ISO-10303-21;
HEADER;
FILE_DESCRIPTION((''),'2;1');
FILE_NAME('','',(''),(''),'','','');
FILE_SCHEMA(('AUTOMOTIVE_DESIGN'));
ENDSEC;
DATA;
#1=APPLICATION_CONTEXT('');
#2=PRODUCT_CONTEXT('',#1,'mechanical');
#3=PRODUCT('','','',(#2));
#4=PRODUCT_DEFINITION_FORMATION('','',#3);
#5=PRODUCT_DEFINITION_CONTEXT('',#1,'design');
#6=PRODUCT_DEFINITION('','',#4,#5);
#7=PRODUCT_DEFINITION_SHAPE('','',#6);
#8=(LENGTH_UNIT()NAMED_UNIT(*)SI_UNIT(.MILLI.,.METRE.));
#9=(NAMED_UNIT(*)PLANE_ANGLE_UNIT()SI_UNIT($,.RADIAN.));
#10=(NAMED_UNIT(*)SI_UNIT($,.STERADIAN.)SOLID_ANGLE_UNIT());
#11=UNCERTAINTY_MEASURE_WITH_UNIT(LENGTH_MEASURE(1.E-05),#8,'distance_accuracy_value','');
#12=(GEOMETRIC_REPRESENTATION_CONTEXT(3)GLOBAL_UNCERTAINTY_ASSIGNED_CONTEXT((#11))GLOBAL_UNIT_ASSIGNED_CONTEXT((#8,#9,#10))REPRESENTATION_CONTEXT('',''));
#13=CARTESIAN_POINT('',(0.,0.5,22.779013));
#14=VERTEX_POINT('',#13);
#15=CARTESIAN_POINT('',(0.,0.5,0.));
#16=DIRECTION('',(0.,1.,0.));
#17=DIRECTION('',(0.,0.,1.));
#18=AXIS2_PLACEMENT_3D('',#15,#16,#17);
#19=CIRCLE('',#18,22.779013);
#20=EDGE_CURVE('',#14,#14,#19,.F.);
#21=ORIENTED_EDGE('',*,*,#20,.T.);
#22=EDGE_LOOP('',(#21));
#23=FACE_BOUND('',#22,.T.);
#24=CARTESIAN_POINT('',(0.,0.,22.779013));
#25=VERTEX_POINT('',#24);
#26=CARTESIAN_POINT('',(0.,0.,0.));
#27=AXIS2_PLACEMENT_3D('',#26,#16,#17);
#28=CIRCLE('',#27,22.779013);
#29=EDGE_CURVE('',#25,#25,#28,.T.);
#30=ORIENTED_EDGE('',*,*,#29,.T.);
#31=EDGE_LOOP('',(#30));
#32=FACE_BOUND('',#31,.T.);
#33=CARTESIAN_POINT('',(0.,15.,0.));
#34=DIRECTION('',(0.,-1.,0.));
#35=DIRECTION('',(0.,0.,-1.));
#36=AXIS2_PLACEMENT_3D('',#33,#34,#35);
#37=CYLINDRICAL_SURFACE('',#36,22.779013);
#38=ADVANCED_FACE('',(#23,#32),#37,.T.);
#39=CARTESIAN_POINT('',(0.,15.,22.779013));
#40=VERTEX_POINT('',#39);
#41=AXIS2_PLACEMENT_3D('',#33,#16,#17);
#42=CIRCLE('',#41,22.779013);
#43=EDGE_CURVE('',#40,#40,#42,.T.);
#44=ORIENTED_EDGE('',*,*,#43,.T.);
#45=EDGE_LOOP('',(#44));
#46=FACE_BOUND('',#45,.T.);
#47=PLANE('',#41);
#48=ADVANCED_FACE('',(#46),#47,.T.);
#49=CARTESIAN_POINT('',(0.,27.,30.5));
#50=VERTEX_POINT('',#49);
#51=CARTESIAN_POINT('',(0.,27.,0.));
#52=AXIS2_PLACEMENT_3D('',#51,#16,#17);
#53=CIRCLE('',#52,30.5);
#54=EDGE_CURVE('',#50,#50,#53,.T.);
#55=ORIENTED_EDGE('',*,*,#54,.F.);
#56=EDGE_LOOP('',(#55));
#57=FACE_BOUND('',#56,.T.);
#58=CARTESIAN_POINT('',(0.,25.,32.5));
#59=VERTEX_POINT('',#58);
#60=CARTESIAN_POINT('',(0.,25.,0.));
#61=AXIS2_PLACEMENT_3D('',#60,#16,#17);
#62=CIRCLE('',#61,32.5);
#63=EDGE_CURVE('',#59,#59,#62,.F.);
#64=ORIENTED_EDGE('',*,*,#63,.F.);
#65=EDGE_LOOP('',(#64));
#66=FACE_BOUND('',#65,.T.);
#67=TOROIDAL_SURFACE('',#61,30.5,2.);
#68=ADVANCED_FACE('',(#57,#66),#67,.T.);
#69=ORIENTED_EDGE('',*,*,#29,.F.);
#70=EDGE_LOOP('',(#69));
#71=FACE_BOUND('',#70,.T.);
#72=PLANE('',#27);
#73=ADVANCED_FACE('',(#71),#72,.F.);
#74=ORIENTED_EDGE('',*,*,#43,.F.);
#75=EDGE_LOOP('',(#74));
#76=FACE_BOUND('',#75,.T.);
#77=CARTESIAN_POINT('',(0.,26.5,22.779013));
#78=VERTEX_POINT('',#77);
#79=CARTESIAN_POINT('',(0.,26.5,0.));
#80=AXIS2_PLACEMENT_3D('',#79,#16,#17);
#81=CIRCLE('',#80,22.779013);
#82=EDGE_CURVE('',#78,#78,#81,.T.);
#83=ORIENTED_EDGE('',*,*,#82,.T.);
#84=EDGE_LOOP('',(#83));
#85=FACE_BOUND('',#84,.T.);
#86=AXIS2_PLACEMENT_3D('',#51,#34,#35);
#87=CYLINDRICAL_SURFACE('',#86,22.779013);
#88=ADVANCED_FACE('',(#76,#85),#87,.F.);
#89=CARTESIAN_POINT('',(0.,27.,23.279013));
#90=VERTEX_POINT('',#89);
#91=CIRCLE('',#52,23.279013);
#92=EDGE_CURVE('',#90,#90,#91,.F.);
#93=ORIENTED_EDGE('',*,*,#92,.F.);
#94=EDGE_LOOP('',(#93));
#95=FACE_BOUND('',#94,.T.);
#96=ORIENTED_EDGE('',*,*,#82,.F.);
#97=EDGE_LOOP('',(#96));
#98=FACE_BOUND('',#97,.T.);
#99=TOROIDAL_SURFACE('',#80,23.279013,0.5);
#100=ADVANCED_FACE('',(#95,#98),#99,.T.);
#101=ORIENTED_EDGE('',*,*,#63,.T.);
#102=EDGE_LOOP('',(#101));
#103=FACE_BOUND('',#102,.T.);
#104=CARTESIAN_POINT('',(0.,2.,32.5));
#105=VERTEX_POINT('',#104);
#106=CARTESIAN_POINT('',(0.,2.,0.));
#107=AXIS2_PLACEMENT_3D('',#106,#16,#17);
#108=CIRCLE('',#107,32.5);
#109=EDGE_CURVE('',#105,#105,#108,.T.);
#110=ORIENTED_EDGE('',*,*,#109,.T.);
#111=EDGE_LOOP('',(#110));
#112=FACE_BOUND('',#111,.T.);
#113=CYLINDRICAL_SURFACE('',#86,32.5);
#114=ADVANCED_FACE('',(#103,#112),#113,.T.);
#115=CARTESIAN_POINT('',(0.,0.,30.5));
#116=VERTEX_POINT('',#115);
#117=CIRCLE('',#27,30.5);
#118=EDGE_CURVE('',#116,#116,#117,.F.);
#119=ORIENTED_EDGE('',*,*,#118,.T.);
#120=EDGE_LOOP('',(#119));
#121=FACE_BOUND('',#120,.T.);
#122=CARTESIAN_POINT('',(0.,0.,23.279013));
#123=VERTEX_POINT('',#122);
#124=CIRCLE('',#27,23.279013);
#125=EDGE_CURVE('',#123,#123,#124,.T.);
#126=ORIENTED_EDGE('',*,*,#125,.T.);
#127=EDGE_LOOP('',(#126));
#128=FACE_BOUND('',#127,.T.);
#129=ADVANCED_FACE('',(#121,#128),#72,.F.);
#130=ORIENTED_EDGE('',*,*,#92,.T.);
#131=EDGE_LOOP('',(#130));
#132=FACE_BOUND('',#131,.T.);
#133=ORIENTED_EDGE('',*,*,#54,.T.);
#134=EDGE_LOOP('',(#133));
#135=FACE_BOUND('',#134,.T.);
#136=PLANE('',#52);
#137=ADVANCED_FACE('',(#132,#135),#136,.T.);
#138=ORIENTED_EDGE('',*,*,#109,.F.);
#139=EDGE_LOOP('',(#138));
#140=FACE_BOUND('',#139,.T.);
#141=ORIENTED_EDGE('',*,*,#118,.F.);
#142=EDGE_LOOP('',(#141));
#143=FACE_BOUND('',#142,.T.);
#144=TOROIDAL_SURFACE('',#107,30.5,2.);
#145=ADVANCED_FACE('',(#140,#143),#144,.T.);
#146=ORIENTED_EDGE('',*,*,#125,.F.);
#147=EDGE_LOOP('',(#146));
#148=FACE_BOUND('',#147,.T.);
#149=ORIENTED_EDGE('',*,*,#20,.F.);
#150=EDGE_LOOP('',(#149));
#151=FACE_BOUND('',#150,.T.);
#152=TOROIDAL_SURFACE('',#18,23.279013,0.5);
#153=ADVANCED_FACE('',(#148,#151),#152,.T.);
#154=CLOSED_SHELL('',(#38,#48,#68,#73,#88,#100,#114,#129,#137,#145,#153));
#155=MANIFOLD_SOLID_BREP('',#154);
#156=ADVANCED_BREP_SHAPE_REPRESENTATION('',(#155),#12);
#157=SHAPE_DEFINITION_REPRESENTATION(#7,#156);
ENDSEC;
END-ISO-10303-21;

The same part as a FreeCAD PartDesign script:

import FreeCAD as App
import Part
import Sketcher

V = App.Vector


def edges_at(feature, points):
    """Names of the edges that pass closest to the given points."""
    edges = feature.Shape.Edges
    near = lambda p: min(range(len(edges)), key=lambda i: edges[i].distToShape(Part.Vertex(*p))[0])
    return sorted({f"Edge{near(p) + 1}" for p in points})

doc = App.newDocument("Part")
body = doc.addObject("PartDesign::Body", "Body")

sketch1 = doc.addObject("Sketcher::SketchObject", "Sketch")
body.addObject(sketch1)
sketch1.AttachmentSupport = (doc.XZ_Plane, [""])
sketch1.MapMode = "FlatFace"
sketch1.addGeometry([
    Part.Circle(V(0, 0, 0), V(0, 0, 1), 32.5),
    Part.Circle(V(0, 0, 0), V(0, 0, 1), 22.779013),
], False)
sketch1.addConstraint([
    Sketcher.Constraint("Coincident", 0, 3, -1, 1),
    Sketcher.Constraint("Coincident", 1, 3, -1, 1),
    Sketcher.Constraint("Diameter", 0, 65.0),
    Sketcher.Constraint("Diameter", 1, 45.558027),
])
pad1 = doc.addObject("PartDesign::Pad", "Pad")
body.addObject(pad1)
pad1.Profile = sketch1
pad1.Length = 27
pad1.Reversed = True
doc.recompute()

fillet = doc.addObject("PartDesign::Fillet", "Fillet")
body.addObject(fillet)
fillet.Base = (pad1, edges_at(pad1, [(0, 0, -32.5), (0, 27, -32.5)]))
fillet.Radius = 2
doc.recompute()

fillet2 = doc.addObject("PartDesign::Fillet", "Fillet001")
body.addObject(fillet2)
fillet2.Base = (fillet, edges_at(fillet, [(0, 0, -22.779), (0, 27, -22.779)]))
fillet2.Radius = 0.5

sketch2 = doc.addObject("Sketcher::SketchObject", "Sketch001")
body.addObject(sketch2)
sketch2.AttachmentSupport = (doc.XZ_Plane, [""])
sketch2.MapMode = "FlatFace"
sketch2.addGeometry(Part.Circle(V(0, 0, 0), V(0, 0, 1), 22.779013), False)
sketch2.addConstraint([
    Sketcher.Constraint("Coincident", 0, 3, -1, 1),
    Sketcher.Constraint("Diameter", 0, 45.558027),
])
pad2 = doc.addObject("PartDesign::Pad", "Pad001")
body.addObject(pad2)
pad2.Profile = sketch2
pad2.Length = 15
pad2.Reversed = True

doc.recompute()
